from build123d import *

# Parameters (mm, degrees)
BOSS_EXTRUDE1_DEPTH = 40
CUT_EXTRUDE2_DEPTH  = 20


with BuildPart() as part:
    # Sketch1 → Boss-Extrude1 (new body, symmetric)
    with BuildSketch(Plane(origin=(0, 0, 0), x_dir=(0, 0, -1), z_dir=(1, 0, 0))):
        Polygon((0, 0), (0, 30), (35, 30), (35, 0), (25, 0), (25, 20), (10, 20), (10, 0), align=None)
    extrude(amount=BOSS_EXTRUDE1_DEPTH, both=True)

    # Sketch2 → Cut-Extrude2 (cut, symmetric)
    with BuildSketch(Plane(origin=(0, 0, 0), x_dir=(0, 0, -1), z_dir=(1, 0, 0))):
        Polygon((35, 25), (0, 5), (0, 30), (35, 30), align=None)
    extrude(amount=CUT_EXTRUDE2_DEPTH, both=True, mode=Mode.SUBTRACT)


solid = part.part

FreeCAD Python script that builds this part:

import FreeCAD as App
import Part
import Sketcher
Q = App.Units.Quantity


def add_polygon(sketch, points):
    """Adds a closed chain of lines whose ends are joined by coincident constraints."""
    first, n = sketch.GeometryCount, len(points)
    for a, b in zip(points, points[1:] + points[:1]):
        sketch.addGeometry(Part.LineSegment(App.Vector(*a, 0), App.Vector(*b, 0)), False)
    for i in range(n):
        sketch.addConstraint(Sketcher.Constraint("Coincident", first + i, 2, first + (i + 1) % n, 1))

doc = App.newDocument("Part")
params = doc.addObject("Spreadsheet::Sheet", "Params")
for row, (alias, value) in enumerate([
    ("sketch1_width", "30 mm"),
    ("sketch1_width2", "20 mm"),
    ("sketch1_height", "10 mm"),
    ("sketch1_height2", "15 mm"),
    ("pad1_length", "80 mm"),
    ("sketch2_width", "5 mm"),
    ("sketch2_width2", "25 mm"),
    ("sketch2_height", "35 mm"),
    ("pocket1_length", "40 mm"),
], start=1):
    params.set(f"A{row}", alias)
    params.set(f"B{row}", "=" + value)
    params.setAlias(f"B{row}", alias)

body = doc.addObject("PartDesign::Body", "Body")

sketch1 = body.newObject("Sketcher::SketchObject", "Sketch")
sketch1.AttachmentSupport = (doc.getObject("YZ_Plane"), [""])
sketch1.MapMode = "FlatFace"
add_polygon(sketch1, [(30, 0), (0, 0), (0, -10), (20, -10), (20, -25), (0, -25), (0, -35), (30, -35)])
sketch1.addConstraint(Sketcher.Constraint("Horizontal", 0))
sketch1.addConstraint(Sketcher.Constraint("Vertical", 1))
sketch1.addConstraint(Sketcher.Constraint("Horizontal", 2))
sketch1.addConstraint(Sketcher.Constraint("Vertical", 3))
sketch1.addConstraint(Sketcher.Constraint("Horizontal", 4))
sketch1.addConstraint(Sketcher.Constraint("Vertical", 5))
sketch1.addConstraint(Sketcher.Constraint("Horizontal", 6))
sketch1.addConstraint(Sketcher.Constraint("Vertical", 7))
sketch1.addConstraint(Sketcher.Constraint("Coincident", 0, 2, -1, 1))
sketch1.addConstraint(Sketcher.Constraint("PointOnObject", 4, 2, -2))
sketch1.addConstraint(Sketcher.Constraint("Equal", 1, 5))
sketch1.addConstraint(Sketcher.Constraint("DistanceX", 0, 2, 0, 1, Q("30 mm")))
sketch1.addConstraint(Sketcher.Constraint("DistanceX", 2, 1, 2, 2, Q("20 mm")))
sketch1.addConstraint(Sketcher.Constraint("DistanceY", 1, 2, 1, 1, Q("10 mm")))
sketch1.addConstraint(Sketcher.Constraint("DistanceY", 3, 2, 3, 1, Q("15 mm")))
sketch1.setExpression("Constraints[19]", "Params.sketch1_width")
sketch1.setExpression("Constraints[20]", "Params.sketch1_width2")
sketch1.setExpression("Constraints[21]", "Params.sketch1_height")
sketch1.setExpression("Constraints[22]", "Params.sketch1_height2")
pad1 = body.newObject("PartDesign::Pad", "Pad")
pad1.Profile = sketch1
pad1.setExpression("Length", "Params.pad1_length")
pad1.Midplane = True

sketch2 = body.newObject("Sketcher::SketchObject", "Sketch001")
sketch2.AttachmentSupport = (doc.getObject("YZ_Plane"), [""])
sketch2.MapMode = "FlatFace"
add_polygon(sketch2, [(5, 0), (25, -35), (30, -35), (30, 0)])
sketch2.addConstraint(Sketcher.Constraint("Horizontal", 1))
sketch2.addConstraint(Sketcher.Constraint("Vertical", 2))
sketch2.addConstraint(Sketcher.Constraint("Horizontal", 3))
sketch2.addConstraint(Sketcher.Constraint("PointOnObject", 2, 2, -1))
sketch2.addConstraint(Sketcher.Constraint("DistanceX", 1, 1, 1, 2, Q("5 mm")))
sketch2.addConstraint(Sketcher.Constraint("DistanceX", 3, 2, 3, 1, Q("25 mm")))
sketch2.addConstraint(Sketcher.Constraint("DistanceY", 2, 1, 2, 2, Q("35 mm")))
sketch2.addConstraint(Sketcher.Constraint("DistanceX", -1, 1, 0, 2, Q("25 mm")))
sketch2.setExpression("Constraints[8]", "Params.sketch2_width")
sketch2.setExpression("Constraints[9]", "Params.sketch2_width2")
sketch2.setExpression("Constraints[10]", "Params.sketch2_height")
pocket1 = body.newObject("PartDesign::Pocket", "Pocket")
pocket1.Profile = sketch2
pocket1.setExpression("Length", "Params.pocket1_length")
pocket1.Midplane = True

doc.recompute()
